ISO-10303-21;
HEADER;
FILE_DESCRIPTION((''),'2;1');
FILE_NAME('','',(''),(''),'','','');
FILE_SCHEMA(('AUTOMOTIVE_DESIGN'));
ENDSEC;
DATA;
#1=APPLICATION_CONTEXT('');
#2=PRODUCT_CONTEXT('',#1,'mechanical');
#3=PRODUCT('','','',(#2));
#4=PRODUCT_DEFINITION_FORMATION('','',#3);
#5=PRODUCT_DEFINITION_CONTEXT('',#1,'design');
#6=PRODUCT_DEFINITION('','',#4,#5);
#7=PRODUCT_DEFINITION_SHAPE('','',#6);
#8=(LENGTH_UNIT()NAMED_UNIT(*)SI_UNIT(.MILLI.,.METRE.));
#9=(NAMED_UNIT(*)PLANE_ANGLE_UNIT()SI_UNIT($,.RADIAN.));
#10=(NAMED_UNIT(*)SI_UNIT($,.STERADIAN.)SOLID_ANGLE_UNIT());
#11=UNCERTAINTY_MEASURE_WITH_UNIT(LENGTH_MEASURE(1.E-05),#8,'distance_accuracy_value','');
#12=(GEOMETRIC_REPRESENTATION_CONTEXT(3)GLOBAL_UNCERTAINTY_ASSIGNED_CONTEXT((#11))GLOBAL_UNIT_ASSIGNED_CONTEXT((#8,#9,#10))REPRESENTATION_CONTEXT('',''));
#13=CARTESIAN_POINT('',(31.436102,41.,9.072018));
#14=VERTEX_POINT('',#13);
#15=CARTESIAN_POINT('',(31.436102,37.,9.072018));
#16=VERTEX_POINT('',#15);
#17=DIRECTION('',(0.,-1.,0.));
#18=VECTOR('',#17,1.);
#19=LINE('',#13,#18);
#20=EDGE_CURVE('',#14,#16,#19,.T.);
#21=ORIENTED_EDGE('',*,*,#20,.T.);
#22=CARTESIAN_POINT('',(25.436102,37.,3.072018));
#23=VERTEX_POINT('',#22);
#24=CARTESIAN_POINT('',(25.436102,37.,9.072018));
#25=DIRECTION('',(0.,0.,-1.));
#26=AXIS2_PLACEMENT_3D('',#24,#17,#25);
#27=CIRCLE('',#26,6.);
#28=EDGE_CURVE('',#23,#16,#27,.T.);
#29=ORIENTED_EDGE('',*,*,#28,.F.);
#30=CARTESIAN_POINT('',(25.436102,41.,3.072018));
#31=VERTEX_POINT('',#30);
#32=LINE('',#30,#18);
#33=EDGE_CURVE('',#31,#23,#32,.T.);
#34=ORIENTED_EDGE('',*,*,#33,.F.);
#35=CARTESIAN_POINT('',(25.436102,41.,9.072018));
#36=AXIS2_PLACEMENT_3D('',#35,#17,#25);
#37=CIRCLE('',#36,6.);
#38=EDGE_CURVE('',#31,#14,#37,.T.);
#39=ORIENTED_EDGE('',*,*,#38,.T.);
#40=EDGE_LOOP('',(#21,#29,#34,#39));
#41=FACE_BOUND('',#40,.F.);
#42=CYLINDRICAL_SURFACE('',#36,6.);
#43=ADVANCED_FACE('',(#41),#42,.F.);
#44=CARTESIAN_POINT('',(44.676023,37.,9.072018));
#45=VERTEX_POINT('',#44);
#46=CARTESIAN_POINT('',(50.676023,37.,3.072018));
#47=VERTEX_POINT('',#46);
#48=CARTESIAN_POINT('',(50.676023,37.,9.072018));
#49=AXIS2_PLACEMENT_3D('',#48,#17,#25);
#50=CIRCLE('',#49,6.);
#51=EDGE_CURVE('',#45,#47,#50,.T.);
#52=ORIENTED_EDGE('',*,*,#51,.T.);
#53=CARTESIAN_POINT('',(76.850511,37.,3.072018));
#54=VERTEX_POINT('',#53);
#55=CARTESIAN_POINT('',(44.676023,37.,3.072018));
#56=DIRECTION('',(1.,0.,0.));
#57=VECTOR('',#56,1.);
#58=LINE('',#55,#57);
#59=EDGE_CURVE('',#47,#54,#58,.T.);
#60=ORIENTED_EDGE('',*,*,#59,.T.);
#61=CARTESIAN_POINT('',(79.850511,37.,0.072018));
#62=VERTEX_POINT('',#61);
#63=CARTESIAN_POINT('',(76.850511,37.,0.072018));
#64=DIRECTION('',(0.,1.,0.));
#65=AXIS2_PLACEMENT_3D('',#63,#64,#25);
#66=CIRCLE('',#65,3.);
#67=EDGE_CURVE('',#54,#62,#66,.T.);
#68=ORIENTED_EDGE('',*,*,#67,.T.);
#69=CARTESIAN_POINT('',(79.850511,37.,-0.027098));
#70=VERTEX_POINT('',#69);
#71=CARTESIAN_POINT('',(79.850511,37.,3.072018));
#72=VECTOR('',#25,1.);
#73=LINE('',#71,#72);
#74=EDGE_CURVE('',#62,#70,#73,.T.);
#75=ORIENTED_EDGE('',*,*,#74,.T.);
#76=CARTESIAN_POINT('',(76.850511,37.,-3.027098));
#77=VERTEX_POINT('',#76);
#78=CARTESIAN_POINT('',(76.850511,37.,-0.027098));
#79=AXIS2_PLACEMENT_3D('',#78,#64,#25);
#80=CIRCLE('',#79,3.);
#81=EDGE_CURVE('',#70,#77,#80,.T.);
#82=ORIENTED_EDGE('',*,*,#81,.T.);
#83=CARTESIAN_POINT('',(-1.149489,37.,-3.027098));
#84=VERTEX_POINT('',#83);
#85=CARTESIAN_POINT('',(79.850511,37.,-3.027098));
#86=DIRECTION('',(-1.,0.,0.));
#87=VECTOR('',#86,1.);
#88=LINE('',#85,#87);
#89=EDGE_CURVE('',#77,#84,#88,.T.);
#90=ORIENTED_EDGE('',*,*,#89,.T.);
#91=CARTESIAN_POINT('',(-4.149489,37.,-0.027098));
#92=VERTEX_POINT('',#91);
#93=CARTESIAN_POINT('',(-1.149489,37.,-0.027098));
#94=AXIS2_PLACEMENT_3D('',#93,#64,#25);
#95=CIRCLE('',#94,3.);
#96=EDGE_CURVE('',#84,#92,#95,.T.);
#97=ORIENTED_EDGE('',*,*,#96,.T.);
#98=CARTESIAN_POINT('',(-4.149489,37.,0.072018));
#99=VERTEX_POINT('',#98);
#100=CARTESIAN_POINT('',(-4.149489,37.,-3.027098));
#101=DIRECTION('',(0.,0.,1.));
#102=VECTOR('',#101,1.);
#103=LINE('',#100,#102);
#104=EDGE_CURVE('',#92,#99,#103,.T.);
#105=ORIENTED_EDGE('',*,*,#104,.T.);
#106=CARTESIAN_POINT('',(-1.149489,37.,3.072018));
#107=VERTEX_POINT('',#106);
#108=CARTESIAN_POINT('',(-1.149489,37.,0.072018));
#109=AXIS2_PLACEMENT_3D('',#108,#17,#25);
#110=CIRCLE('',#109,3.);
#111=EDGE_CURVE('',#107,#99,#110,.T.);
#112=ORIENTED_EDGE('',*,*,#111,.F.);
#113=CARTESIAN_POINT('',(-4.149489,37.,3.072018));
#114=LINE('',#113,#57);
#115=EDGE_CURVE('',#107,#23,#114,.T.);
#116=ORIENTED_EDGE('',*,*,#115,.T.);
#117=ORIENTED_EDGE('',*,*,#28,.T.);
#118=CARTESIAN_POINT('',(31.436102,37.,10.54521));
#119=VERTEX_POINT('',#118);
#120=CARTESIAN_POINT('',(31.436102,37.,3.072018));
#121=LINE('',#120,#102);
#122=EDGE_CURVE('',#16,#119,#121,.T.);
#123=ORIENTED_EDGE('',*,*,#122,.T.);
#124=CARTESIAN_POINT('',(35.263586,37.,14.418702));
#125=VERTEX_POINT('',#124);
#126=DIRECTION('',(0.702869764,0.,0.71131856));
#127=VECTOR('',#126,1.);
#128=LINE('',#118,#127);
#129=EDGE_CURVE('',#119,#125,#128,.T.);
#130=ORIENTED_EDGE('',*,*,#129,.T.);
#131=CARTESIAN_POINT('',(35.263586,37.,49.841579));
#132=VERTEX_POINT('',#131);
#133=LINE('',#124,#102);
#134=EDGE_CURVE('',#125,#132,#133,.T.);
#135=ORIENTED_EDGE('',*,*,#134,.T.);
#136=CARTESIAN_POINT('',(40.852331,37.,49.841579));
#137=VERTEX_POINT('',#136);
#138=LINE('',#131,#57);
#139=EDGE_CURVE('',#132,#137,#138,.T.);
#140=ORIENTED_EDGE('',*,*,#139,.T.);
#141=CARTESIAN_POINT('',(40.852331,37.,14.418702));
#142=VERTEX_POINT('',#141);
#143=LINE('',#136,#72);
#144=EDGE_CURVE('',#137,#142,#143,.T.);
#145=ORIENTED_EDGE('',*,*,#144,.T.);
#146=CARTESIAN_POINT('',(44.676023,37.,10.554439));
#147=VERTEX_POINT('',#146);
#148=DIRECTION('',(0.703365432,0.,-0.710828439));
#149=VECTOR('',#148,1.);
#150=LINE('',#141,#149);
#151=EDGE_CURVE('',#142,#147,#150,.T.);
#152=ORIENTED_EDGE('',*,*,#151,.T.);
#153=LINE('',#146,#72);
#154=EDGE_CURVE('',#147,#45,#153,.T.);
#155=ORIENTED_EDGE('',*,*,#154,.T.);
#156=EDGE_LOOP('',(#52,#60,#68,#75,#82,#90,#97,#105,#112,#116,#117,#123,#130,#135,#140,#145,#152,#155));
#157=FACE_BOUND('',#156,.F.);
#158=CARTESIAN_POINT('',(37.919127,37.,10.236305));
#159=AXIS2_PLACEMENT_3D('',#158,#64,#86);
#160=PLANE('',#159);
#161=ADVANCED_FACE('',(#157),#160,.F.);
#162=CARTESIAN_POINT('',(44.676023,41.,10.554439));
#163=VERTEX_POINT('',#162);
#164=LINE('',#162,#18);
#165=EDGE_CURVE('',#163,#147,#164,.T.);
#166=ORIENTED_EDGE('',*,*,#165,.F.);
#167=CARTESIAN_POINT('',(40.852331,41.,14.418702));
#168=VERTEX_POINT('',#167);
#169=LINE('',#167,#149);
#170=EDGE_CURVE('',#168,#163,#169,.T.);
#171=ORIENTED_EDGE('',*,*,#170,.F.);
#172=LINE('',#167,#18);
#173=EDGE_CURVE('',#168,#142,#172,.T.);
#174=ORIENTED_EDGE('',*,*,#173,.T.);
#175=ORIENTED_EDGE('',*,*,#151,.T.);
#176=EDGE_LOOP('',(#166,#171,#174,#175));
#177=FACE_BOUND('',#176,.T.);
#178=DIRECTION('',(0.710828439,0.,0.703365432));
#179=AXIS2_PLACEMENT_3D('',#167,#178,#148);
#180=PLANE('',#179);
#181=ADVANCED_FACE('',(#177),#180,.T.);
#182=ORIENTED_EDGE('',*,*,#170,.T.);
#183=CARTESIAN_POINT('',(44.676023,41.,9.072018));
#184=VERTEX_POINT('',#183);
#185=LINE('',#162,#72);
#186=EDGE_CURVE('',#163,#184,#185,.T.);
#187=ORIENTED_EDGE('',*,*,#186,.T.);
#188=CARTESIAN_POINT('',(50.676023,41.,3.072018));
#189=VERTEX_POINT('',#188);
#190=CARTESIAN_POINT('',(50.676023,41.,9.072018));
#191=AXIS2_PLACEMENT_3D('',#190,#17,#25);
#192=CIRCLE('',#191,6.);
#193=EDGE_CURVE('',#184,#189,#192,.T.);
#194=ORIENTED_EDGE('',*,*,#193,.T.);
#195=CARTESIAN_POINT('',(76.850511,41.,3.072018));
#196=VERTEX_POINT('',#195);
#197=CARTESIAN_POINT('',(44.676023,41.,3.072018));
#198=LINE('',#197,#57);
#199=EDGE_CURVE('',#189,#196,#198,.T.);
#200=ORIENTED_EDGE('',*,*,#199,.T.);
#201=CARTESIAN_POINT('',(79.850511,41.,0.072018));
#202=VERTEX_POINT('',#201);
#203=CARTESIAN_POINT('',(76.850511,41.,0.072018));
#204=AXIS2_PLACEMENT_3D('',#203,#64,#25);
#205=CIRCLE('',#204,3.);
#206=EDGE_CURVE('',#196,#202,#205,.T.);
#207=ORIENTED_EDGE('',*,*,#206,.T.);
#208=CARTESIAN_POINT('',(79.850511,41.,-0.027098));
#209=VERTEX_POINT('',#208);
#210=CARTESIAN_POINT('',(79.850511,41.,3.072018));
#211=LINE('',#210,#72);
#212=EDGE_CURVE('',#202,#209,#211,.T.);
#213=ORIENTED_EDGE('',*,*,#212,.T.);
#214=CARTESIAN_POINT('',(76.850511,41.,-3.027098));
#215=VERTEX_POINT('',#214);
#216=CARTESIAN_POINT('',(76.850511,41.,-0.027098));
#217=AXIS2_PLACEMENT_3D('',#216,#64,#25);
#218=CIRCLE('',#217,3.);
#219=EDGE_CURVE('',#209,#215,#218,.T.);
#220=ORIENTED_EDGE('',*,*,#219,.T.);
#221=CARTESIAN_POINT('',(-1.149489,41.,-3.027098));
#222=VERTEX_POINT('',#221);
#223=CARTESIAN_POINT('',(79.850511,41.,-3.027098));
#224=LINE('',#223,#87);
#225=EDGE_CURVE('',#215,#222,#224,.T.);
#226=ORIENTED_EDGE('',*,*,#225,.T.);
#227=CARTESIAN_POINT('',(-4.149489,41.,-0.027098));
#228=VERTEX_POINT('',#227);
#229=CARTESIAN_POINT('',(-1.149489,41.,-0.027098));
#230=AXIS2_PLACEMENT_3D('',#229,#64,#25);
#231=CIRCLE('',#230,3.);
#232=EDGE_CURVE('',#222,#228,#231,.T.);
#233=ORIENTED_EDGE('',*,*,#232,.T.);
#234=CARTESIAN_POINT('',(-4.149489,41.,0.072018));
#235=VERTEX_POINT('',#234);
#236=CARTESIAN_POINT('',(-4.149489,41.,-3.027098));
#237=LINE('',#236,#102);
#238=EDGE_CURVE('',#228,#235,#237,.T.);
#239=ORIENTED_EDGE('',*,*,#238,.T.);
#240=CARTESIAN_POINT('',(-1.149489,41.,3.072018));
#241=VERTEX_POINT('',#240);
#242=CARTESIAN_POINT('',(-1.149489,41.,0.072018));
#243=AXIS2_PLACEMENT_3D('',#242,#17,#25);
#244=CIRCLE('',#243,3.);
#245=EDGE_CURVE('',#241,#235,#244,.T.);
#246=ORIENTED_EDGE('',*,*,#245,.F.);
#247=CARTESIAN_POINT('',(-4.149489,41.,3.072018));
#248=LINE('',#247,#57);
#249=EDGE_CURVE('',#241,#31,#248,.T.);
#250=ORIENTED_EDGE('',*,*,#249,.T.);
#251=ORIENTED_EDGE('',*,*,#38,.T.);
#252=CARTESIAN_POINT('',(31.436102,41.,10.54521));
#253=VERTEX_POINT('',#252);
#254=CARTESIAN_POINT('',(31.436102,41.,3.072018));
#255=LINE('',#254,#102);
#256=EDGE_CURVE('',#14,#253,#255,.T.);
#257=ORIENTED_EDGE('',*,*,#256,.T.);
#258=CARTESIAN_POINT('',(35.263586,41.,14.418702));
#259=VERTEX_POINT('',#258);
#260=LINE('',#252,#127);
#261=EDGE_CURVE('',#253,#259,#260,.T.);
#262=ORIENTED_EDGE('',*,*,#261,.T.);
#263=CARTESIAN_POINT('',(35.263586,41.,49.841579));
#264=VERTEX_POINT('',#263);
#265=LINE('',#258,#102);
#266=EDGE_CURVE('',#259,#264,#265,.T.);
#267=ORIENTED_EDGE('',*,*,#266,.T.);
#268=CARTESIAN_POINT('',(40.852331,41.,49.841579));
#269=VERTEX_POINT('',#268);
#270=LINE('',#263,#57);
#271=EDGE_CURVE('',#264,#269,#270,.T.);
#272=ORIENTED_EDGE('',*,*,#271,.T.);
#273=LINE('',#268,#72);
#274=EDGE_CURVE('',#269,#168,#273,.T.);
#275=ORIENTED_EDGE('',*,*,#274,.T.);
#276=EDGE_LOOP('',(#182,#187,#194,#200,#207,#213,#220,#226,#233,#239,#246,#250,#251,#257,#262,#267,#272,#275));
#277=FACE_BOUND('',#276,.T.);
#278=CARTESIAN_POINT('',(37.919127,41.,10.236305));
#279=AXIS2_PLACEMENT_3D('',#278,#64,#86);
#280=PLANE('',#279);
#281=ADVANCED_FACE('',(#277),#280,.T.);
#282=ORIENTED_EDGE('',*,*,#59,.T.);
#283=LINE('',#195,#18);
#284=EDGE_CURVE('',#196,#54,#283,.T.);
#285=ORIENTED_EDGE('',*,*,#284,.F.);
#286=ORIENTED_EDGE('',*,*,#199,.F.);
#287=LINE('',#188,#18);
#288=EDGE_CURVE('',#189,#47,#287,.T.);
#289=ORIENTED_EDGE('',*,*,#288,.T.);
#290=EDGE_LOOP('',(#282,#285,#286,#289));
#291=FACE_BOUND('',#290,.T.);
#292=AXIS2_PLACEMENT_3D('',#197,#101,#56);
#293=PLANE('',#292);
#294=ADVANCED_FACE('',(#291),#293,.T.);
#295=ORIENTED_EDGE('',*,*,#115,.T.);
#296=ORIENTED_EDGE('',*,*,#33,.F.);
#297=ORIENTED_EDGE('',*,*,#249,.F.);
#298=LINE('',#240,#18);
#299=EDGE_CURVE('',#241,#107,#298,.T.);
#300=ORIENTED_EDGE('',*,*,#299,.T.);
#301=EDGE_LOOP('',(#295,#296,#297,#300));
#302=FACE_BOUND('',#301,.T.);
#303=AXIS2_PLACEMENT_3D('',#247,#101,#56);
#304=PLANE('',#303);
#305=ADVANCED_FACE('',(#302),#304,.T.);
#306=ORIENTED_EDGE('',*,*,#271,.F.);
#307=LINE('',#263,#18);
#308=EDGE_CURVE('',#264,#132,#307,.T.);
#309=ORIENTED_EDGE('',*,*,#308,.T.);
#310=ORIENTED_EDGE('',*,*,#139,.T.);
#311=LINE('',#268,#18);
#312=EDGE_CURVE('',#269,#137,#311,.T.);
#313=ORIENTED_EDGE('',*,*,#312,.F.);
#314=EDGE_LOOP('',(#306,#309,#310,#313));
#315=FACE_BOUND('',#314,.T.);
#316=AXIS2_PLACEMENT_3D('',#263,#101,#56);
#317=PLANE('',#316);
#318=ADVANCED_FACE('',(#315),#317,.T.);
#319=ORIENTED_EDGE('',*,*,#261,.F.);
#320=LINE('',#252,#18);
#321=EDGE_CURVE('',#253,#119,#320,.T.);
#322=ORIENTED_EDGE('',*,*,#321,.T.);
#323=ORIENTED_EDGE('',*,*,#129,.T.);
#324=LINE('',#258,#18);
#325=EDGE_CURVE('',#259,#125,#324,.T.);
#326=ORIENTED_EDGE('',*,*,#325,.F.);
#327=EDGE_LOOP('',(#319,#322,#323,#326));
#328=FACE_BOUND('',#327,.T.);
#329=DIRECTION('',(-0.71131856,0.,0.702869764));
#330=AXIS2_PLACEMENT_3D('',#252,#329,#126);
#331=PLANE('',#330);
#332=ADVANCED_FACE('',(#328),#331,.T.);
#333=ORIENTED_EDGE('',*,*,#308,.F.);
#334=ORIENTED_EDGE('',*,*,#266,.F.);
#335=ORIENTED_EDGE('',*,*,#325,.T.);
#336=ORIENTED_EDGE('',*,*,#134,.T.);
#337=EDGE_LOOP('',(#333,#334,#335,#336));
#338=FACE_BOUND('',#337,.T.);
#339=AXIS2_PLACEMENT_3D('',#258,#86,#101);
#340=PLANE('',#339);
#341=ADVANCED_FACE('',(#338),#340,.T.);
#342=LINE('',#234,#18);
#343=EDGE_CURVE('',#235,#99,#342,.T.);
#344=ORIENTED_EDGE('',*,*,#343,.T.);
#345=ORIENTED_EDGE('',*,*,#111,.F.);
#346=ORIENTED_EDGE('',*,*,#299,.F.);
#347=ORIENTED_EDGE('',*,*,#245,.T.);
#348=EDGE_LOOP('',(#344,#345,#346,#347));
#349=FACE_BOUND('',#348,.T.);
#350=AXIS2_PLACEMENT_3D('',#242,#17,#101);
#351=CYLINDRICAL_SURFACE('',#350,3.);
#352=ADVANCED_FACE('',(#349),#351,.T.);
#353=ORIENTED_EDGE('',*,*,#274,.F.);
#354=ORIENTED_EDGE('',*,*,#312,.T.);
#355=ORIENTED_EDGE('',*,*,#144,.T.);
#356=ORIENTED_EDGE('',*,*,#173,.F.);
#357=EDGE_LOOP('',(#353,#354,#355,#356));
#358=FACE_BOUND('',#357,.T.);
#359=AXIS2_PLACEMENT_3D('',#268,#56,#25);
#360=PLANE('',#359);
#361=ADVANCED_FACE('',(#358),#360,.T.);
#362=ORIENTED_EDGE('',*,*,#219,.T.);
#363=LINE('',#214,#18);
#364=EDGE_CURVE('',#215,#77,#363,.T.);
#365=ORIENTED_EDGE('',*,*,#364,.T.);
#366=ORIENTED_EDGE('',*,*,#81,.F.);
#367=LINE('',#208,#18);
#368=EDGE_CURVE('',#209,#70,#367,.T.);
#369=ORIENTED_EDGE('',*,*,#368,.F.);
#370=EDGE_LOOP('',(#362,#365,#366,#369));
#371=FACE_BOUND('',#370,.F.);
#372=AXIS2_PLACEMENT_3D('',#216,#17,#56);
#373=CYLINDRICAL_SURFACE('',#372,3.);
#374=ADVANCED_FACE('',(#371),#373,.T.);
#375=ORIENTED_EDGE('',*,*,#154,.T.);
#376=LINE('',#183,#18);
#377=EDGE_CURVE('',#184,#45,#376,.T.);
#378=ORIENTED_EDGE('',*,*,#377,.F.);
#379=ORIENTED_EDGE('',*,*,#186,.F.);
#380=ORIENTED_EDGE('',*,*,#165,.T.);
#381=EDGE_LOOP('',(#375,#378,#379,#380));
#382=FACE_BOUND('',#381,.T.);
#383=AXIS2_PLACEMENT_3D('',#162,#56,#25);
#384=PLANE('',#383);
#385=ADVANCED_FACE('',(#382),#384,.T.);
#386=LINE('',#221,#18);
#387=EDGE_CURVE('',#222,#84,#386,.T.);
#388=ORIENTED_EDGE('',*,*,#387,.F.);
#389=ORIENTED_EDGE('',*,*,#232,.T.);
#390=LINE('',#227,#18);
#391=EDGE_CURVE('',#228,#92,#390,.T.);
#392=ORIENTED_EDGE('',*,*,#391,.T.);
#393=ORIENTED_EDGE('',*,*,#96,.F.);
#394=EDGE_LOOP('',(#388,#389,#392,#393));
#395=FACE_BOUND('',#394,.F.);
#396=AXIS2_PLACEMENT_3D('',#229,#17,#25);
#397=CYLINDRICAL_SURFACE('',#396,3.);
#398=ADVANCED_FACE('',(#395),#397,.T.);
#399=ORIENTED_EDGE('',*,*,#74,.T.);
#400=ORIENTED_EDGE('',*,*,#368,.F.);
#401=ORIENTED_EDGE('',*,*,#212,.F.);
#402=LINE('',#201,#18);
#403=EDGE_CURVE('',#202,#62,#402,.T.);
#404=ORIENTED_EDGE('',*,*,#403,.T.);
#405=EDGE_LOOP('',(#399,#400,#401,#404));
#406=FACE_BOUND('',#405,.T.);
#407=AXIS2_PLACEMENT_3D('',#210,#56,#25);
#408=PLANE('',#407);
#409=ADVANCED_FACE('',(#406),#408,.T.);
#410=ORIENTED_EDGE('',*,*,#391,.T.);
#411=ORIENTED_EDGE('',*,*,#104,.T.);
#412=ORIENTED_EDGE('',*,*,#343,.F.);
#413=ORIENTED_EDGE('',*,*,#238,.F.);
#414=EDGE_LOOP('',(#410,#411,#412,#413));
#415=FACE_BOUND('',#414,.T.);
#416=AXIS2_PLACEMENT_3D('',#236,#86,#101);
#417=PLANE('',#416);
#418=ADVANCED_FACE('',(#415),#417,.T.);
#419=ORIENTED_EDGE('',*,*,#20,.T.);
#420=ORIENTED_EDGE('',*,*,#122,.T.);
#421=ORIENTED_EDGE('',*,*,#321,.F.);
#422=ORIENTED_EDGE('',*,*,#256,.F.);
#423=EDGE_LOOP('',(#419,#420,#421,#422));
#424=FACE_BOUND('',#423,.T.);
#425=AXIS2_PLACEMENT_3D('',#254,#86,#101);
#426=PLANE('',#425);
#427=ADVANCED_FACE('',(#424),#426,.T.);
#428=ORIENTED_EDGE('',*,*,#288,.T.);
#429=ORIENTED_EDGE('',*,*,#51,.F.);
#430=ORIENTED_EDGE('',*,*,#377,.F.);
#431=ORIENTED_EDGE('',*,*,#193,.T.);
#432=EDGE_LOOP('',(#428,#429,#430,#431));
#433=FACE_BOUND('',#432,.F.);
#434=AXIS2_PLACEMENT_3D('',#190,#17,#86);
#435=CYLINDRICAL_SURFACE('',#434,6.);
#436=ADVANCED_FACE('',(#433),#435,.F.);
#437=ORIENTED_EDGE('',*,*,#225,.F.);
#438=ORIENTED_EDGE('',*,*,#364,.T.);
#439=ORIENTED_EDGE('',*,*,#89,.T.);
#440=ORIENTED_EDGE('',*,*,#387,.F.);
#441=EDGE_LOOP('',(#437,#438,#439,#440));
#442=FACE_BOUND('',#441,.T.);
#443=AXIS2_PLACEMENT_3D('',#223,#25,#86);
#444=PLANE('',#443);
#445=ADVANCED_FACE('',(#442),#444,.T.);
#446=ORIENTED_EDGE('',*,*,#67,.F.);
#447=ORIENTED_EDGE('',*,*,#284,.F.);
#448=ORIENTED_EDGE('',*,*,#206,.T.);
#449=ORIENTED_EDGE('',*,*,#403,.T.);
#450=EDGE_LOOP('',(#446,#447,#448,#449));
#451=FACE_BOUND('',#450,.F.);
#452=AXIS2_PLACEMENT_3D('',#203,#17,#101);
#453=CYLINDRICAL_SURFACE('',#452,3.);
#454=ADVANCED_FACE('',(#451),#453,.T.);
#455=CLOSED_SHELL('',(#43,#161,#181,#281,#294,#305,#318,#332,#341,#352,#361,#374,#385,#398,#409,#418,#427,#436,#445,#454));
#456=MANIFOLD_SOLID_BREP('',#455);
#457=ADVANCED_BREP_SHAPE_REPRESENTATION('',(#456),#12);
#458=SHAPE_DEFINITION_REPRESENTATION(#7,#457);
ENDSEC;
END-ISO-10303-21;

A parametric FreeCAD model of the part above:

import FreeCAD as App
import Part
import Sketcher

V = App.Vector


def edges_at(feature, points):
    """Names of the edges that pass closest to the given points."""
    edges = feature.Shape.Edges
    near = lambda p: min(range(len(edges)), key=lambda i: edges[i].distToShape(Part.Vertex(*p))[0])
    return sorted({f"Edge{near(p) + 1}" for p in points})


def add_polygon(sketch, points):
    """Adds a closed chain of lines whose ends are joined by coincident constraints."""
    first, n = sketch.GeometryCount, len(points)
    for a, b in zip(points, points[1:] + points[:1]):
        sketch.addGeometry(Part.LineSegment(App.Vector(*a, 0), App.Vector(*b, 0)), False)
    for i in range(n):
        sketch.addConstraint(Sketcher.Constraint("Coincident", first + i, 2, first + (i + 1) % n, 1))

doc = App.newDocument("Part")
body = doc.addObject("PartDesign::Body", "Body")

sketch1 = body.newObject("Sketcher::SketchObject", "Sketch")
sketch1.AttachmentSupport = (doc.getObject("XZ_Plane"), [""])
sketch1.MapMode = "FlatFace"
sketch1.AttachmentOffset = App.Placement(V(0, 0, 25), App.Rotation())
add_polygon(sketch1, [(31, 3), (-4, 3), (-4, -3), (80, -3), (80, 3), (45, 3), (45, 11), (41, 14), (41, 50), (35, 50), (35, 14), (31, 11)])
sketch1.addConstraint(Sketcher.Constraint("Horizontal", 0))
sketch1.addConstraint(Sketcher.Constraint("Vertical", 1))
sketch1.addConstraint(Sketcher.Constraint("Horizontal", 2))
sketch1.addConstraint(Sketcher.Constraint("Vertical", 3))
sketch1.addConstraint(Sketcher.Constraint("Horizontal", 4))
sketch1.addConstraint(Sketcher.Constraint("Vertical", 5))
sketch1.addConstraint(Sketcher.Constraint("Vertical", 7))
sketch1.addConstraint(Sketcher.Constraint("Horizontal", 8))
sketch1.addConstraint(Sketcher.Constraint("Vertical", 9))
sketch1.addConstraint(Sketcher.Constraint("Vertical", 11))
sketch1.addConstraint(Sketcher.Constraint("Horizontal", 0, 2, 3, 2))
sketch1.addConstraint(Sketcher.Constraint("Horizontal", 6, 2, 9, 2))
sketch1.addConstraint(Sketcher.Constraint("DistanceX", 2, 1, 2, 2, 84.0))
sketch1.addConstraint(Sketcher.Constraint("DistanceX", 0, 2, 0, 1, 35.585591))
sketch1.addConstraint(Sketcher.Constraint("DistanceY", 5, 1, 5, 2, 7.482421))
sketch1.addConstraint(Sketcher.Constraint("DistanceY", 1, 2, -1, 1, 3.027098))
sketch1.addConstraint(Sketcher.Constraint("DistanceY", 2, 2, 6, 2, 17.4458))
sketch1.addConstraint(Sketcher.Constraint("Distance", 6, 5.436281))
sketch1.addConstraint(Sketcher.Constraint("Distance", 10, 5.44551))
sketch1.addConstraint(Sketcher.Constraint("DistanceX", 4, 2, 4, 1, 35.174488))
sketch1.addConstraint(Sketcher.Constraint("DistanceX", 8, 2, 8, 1, 5.588745))
sketch1.addConstraint(Sketcher.Constraint("DistanceY", 1, 2, 1, 1, 6.099116))
sketch1.addConstraint(Sketcher.Constraint("DistanceY", 7, 1, 7, 2, 35.422877))
sketch1.addConstraint(Sketcher.Constraint("DistanceX", 0, 2, -1, 1, 4.149489))
pad1 = body.newObject("PartDesign::Pad", "Pad")
pad1.Profile = sketch1
pad1.Length = 4
doc.recompute()

fillet = body.newObject("PartDesign::Fillet", "Fillet")
fillet.Base = (pad1, edges_at(pad1, [
    (79.851, -27, 3.072),
    (79.851, -27, -3.027),
    (-4.149, -27, -3.027),
    (-4.149, -27, 3.072),
]))
fillet.Radius = 3
doc.recompute()

fillet2 = body.newObject("PartDesign::Fillet", "Fillet001")
fillet2.Base = (fillet, edges_at(fillet, [(44.676, -27, 3.072), (31.436, -27, 3.072)]))
fillet2.Radius = 6
body2 = doc.addObject("PartDesign::Body", "Body001")
doc.recompute()

body.Placement = App.Placement(V(0, 66, 0), App.Rotation(V(0, 0, 1), 0))
boolean = body2.newObject("PartDesign::Boolean", "Boolean")
boolean.Type = "Fuse"
boolean.addObjects([body])

doc.recompute()
